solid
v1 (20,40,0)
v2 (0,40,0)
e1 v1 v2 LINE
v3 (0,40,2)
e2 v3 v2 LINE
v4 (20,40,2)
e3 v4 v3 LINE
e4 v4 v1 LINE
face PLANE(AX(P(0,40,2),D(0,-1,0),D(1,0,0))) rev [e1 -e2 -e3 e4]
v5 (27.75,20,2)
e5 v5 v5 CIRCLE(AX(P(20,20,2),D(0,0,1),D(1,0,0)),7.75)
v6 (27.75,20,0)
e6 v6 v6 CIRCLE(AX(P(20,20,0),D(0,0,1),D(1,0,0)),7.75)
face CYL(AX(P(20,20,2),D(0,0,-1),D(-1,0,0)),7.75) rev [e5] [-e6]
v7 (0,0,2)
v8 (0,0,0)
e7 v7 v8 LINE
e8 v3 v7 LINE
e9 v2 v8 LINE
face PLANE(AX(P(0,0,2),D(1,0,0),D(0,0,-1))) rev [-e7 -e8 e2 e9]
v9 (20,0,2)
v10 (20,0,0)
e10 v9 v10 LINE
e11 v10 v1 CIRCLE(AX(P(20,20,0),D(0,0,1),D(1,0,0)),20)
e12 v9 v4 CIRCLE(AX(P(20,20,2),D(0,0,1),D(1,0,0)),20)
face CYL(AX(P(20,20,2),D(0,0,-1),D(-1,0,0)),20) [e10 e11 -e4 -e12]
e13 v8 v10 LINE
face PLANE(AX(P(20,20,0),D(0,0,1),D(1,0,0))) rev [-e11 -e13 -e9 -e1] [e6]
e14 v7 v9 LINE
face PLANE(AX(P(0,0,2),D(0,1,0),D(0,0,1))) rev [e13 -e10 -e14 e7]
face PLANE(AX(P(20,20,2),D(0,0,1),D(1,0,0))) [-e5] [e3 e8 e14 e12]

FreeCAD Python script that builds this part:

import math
import FreeCAD as App
import Part
import Sketcher
from FreeCAD import Vector
Q = App.Units.Quantity

doc = App.newDocument("Part")
body = doc.addObject("PartDesign::Body", "Body")

# Sketch on XY plane
sketch1 = body.newObject("Sketcher::SketchObject", "Sketch")
sketch1.AttachmentSupport = (doc.getObject("XY_Plane"), [""])
sketch1.MapMode = "FlatFace"
sketch1.addGeometry(Part.LineSegment(Vector(0, 0, 0), Vector(20, 0, 0)), False)
sketch1.addGeometry(Part.ArcOfCircle(Part.Circle(Vector(20, 20, 0), Vector(0, 0, 1), 20), math.radians(-90), math.radians(90)), False)
sketch1.addGeometry(Part.LineSegment(Vector(20, 40, 0), Vector(0, 40, 0)), False)
sketch1.addGeometry(Part.LineSegment(Vector(0, 40, 0), Vector(0, 0, 0)), False)
sketch1.addGeometry(Part.Circle(Vector(20, 20, 0), Vector(0, 0, 1), 8), False)
sketch1.addConstraint(Sketcher.Constraint("Tangent", 0, 2, 1, 1))
sketch1.addConstraint(Sketcher.Constraint("Tangent", 1, 2, 2, 1))
sketch1.addConstraint(Sketcher.Constraint("Coincident", 2, 2, 3, 1))
sketch1.addConstraint(Sketcher.Constraint("Coincident", 3, 2, 0, 1))
sketch1.addConstraint(Sketcher.Constraint("Horizontal", 0))
sketch1.addConstraint(Sketcher.Constraint("Horizontal", 2))
sketch1.addConstraint(Sketcher.Constraint("Vertical", 3))
sketch1.addConstraint(Sketcher.Constraint("Coincident", 3, 2, -1, 1))
sketch1.addConstraint(Sketcher.Constraint("Coincident", 4, 3, 1, 3))
sketch1.addConstraint(Sketcher.Constraint("Radius", 1, Q("20 mm")))
sketch1.addConstraint(Sketcher.Constraint("Diameter", 4, Q("15.5 mm")))
sketch1.addConstraint(Sketcher.Constraint("DistanceX", 0, 1, 0, 2, Q("20 mm")))
pad1 = body.newObject("PartDesign::Pad", "Pad")
pad1.Profile = sketch1
pad1.Length = 2

doc.recompute()
